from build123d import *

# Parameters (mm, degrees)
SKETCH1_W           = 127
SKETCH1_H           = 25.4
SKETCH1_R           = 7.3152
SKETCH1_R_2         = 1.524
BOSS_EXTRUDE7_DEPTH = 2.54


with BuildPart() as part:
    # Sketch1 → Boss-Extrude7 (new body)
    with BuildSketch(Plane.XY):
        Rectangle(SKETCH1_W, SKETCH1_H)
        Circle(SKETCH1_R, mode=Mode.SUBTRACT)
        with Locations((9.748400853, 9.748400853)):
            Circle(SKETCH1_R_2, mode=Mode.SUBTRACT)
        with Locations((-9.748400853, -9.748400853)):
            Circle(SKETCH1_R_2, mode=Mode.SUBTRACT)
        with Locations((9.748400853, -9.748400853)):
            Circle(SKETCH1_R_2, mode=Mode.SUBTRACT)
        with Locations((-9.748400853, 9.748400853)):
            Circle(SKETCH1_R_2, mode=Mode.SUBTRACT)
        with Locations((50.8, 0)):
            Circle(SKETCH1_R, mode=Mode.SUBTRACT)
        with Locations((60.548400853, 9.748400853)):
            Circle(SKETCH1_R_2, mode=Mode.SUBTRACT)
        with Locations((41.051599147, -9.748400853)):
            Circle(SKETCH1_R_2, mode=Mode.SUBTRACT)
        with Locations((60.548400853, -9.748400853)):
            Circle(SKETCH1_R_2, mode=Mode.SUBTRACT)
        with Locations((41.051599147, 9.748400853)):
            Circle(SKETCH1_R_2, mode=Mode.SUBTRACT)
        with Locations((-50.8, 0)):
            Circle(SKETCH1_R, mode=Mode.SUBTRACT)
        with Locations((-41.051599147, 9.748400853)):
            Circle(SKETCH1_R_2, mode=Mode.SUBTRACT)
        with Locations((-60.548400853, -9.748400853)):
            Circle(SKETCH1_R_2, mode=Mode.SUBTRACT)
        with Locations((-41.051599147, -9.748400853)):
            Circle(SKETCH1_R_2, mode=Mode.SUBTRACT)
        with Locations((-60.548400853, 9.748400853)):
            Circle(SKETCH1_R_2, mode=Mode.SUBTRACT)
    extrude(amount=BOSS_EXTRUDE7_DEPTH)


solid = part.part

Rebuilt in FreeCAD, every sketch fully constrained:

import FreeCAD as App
import Part
import Sketcher
Q = App.Units.Quantity

doc = App.newDocument("Part")
body = doc.addObject("PartDesign::Body", "Body")

# Sketch on XY plane
sketch1 = doc.addObject("Sketcher::SketchObject", "Sketch")
body.addObject(sketch1)
sketch1.AttachmentSupport = (doc.XY_Plane, [""])
sketch1.MapMode = "FlatFace"
sketch1.addGeometry(Part.LineSegment(App.Vector(-63.5, 12.7, 0), App.Vector(-63.5, -12.7, 0)), False)
sketch1.addGeometry(Part.LineSegment(App.Vector(-63.5, -12.7, 0), App.Vector(63.5, -12.7, 0)), False)
sketch1.addGeometry(Part.LineSegment(App.Vector(63.5, -12.7, 0), App.Vector(63.5, 12.7, 0)), False)
sketch1.addGeometry(Part.LineSegment(App.Vector(63.5, 12.7, 0), App.Vector(-63.5, 12.7, 0)), False)
sketch1.addGeometry(Part.Circle(App.Vector(-60.548401, -9.748401, 0), App.Vector(0, 0, 1), 1.524), False)
sketch1.addGeometry(Part.Circle(App.Vector(-41.051599, -9.748401, 0), App.Vector(0, 0, 1), 1.524), False)
sketch1.addGeometry(Part.Circle(App.Vector(-9.748401, -9.748401, 0), App.Vector(0, 0, 1), 1.524), False)
sketch1.addGeometry(Part.Circle(App.Vector(9.748401, -9.748401, 0), App.Vector(0, 0, 1), 1.524), False)
sketch1.addGeometry(Part.Circle(App.Vector(41.051599, -9.748401, 0), App.Vector(0, 0, 1), 1.524), False)
sketch1.addGeometry(Part.Circle(App.Vector(60.548401, -9.748401, 0), App.Vector(0, 0, 1), 1.524), False)
sketch1.addGeometry(Part.Circle(App.Vector(-50.8, 0, 0), App.Vector(0, 0, 1), 7.3152), False)
sketch1.addGeometry(Part.Circle(App.Vector(-60.548401, 9.748401, 0), App.Vector(0, 0, 1), 1.524), False)
sketch1.addGeometry(Part.Circle(App.Vector(-41.051599, 9.748401, 0), App.Vector(0, 0, 1), 1.524), False)
sketch1.addGeometry(Part.Circle(App.Vector(-9.748401, 9.748401, 0), App.Vector(0, 0, 1), 1.524), False)
sketch1.addGeometry(Part.Circle(App.Vector(0, 0, 0), App.Vector(0, 0, 1), 7.3152), False)
sketch1.addGeometry(Part.Circle(App.Vector(50.8, 0, 0), App.Vector(0, 0, 1), 7.3152), False)
sketch1.addGeometry(Part.Circle(App.Vector(9.748401, 9.748401, 0), App.Vector(0, 0, 1), 1.524), False)
sketch1.addGeometry(Part.Circle(App.Vector(41.051599, 9.748401, 0), App.Vector(0, 0, 1), 1.524), False)
sketch1.addGeometry(Part.Circle(App.Vector(60.548401, 9.748401, 0), App.Vector(0, 0, 1), 1.524), False)
sketch1.addConstraint(Sketcher.Constraint("Coincident", 0, 2, 1, 1))
sketch1.addConstraint(Sketcher.Constraint("Coincident", 1, 2, 2, 1))
sketch1.addConstraint(Sketcher.Constraint("Coincident", 2, 2, 3, 1))
sketch1.addConstraint(Sketcher.Constraint("Coincident", 3, 2, 0, 1))
sketch1.addConstraint(Sketcher.Constraint("Vertical", 0))
sketch1.addConstraint(Sketcher.Constraint("Horizontal", 1))
sketch1.addConstraint(Sketcher.Constraint("Vertical", 2))
sketch1.addConstraint(Sketcher.Constraint("Horizontal", 3))
sketch1.addConstraint(Sketcher.Constraint("Coincident", 14, 3, -1, 1))
sketch1.addConstraint(Sketcher.Constraint("Equal", 4, 5))
sketch1.addConstraint(Sketcher.Constraint("Equal", 5, 6))
sketch1.addConstraint(Sketcher.Constraint("Equal", 6, 7))
sketch1.addConstraint(Sketcher.Constraint("Equal", 7, 8))
sketch1.addConstraint(Sketcher.Constraint("Equal", 8, 9))
sketch1.addConstraint(Sketcher.Constraint("Equal", 9, 11))
sketch1.addConstraint(Sketcher.Constraint("Equal", 11, 12))
sketch1.addConstraint(Sketcher.Constraint("Equal", 12, 13))
sketch1.addConstraint(Sketcher.Constraint("Equal", 10, 14))
sketch1.addConstraint(Sketcher.Constraint("Equal", 14, 15))
sketch1.addConstraint(Sketcher.Constraint("Equal", 13, 16))
sketch1.addConstraint(Sketcher.Constraint("Equal", 16, 17))
sketch1.addConstraint(Sketcher.Constraint("Equal", 17, 18))
sketch1.addConstraint(Sketcher.Constraint("Symmetric", 9, 3, 11, 3, -1, 1))
sketch1.addConstraint(Sketcher.Constraint("Symmetric", 8, 3, 12, 3, -1, 1))
sketch1.addConstraint(Sketcher.Constraint("Symmetric", 7, 3, 13, 3, -1, 1))
sketch1.addConstraint(Sketcher.Constraint("Symmetric", 10, 3, 15, 3, -1, 1))
sketch1.addConstraint(Sketcher.Constraint("Symmetric", 6, 3, 16, 3, -1, 1))
sketch1.addConstraint(Sketcher.Constraint("Symmetric", 5, 3, 17, 3, -1, 1))
sketch1.addConstraint(Sketcher.Constraint("Symmetric", 4, 3, 18, 3, -1, 1))
sketch1.addConstraint(Sketcher.Constraint("Symmetric", 0, 2, 2, 2, -1, 1))
sketch1.addConstraint(Sketcher.Constraint("Symmetric", 6, 3, 7, 3, -2))
sketch1.addConstraint(Sketcher.Constraint("Symmetric", 5, 3, 8, 3, -2))
sketch1.addConstraint(Sketcher.Constraint("Symmetric", 4, 3, 9, 3, -2))
sketch1.addConstraint(Sketcher.Constraint("PointOnObject", 10, 3, -1))
sketch1.addConstraint(Sketcher.Constraint("Horizontal", 4, 3, 5, 3))
sketch1.addConstraint(Sketcher.Constraint("Horizontal", 5, 3, 6, 3))
sketch1.addConstraint(Sketcher.Constraint("Diameter", 4, Q("0.12 in")))
sketch1.addConstraint(Sketcher.Constraint("DistanceX", 1, 1, 1, 2, Q("5 in")))
sketch1.addConstraint(Sketcher.Constraint("DistanceY", 0, 2, 0, 1, Q("1 in")))
sketch1.addConstraint(Sketcher.Constraint("Diameter", 10, Q("0.576 in")))
sketch1.addConstraint(Sketcher.Constraint("DistanceX", 10, 3, -1, 1, Q("2 in")))
sketch1.addConstraint(Sketcher.Constraint("DistanceX", 4, 3, 6, 3, Q("2 in")))
sketch1.addConstraint(Sketcher.Constraint("DistanceX", 5, 3, 7, 3, Q("2 in")))
sketch1.addConstraint(Sketcher.Constraint("DistanceX", 4, 3, -1, 1, 60.548401))
sketch1.addConstraint(Sketcher.Constraint("DistanceY", 4, 3, -1, 1, 9.748401))
pad1 = doc.addObject("PartDesign::Pad", "Pad")
body.addObject(pad1)
pad1.Profile = sketch1
pad1.Length = Q("0.1 in")

doc.recompute()
